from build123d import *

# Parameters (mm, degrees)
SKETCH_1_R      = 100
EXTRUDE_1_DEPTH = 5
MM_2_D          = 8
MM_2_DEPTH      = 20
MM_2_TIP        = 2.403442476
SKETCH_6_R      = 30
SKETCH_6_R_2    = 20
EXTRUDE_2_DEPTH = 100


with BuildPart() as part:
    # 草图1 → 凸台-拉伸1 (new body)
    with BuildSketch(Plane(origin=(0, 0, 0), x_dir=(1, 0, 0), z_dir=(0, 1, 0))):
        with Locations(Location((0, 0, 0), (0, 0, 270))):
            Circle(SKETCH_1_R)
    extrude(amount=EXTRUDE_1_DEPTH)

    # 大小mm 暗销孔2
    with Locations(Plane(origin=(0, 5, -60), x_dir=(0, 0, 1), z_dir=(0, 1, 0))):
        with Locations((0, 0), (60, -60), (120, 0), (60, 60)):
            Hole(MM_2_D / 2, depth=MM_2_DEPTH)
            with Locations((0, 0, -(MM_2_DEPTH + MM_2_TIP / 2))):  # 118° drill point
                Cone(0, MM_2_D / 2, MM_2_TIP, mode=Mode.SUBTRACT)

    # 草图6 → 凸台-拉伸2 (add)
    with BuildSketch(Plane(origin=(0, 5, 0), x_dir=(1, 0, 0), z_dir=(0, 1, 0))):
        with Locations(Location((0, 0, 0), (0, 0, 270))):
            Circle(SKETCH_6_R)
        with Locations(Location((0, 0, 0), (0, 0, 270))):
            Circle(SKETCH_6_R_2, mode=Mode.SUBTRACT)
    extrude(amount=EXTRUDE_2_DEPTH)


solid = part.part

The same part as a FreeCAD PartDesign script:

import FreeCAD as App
import Part
import Sketcher

V = App.Vector
Q = App.Units.Quantity

doc = App.newDocument("Part")
body = doc.addObject("PartDesign::Body", "Body")

# Sketch on XZ plane
sketch1 = body.newObject("Sketcher::SketchObject", "Sketch")
sketch1.AttachmentSupport = (doc.getObject("XZ_Plane"), [""])
sketch1.MapMode = "FlatFace"
sketch1.addGeometry(Part.Circle(V(0, 0, 0), V(0, 0, 1), 100), False)
sketch1.addConstraint(Sketcher.Constraint("Coincident", 0, 3, -1, 1))
sketch1.addConstraint(Sketcher.Constraint("Diameter", 0, Q("200 mm")))
pad1 = body.newObject("PartDesign::Pad", "Pad")
pad1.Profile = sketch1
pad1.Length = 5
pad1.Reversed = True

# Sketch on XZ plane
sketch2 = body.newObject("Sketcher::SketchObject", "Sketch001")
sketch2.AttachmentSupport = (doc.getObject("XZ_Plane"), [""])
sketch2.MapMode = "FlatFace"
sketch2.AttachmentOffset = App.Placement(V(0, 0, -5), App.Rotation())
sketch2.addGeometry(Part.Circle(V(0, -60, 0), V(0, 0, 1), 4), False)
sketch2.addGeometry(Part.Circle(V(-60, 0, 0), V(0, 0, 1), 4), False)
sketch2.addGeometry(Part.Circle(V(0, 60, 0), V(0, 0, 1), 4), False)
sketch2.addGeometry(Part.Circle(V(60, 0, 0), V(0, 0, 1), 4), False)
sketch2.addConstraint(Sketcher.Constraint("Equal", 0, 1))
sketch2.addConstraint(Sketcher.Constraint("Equal", 1, 2))
sketch2.addConstraint(Sketcher.Constraint("Equal", 2, 3))
sketch2.addConstraint(Sketcher.Constraint("Symmetric", 0, 3, 2, 3, -1, 1))
sketch2.addConstraint(Sketcher.Constraint("Symmetric", 1, 3, 3, 3, -1, 1))
sketch2.addConstraint(Sketcher.Constraint("PointOnObject", 0, 3, -2))
sketch2.addConstraint(Sketcher.Constraint("PointOnObject", 1, 3, -1))
sketch2.addConstraint(Sketcher.Constraint("Diameter", 0, Q("8 mm")))
sketch2.addConstraint(Sketcher.Constraint("DistanceY", 0, 3, -1, 1, Q("60 mm")))
sketch2.addConstraint(Sketcher.Constraint("DistanceX", 1, 3, -1, 1, Q("60 mm")))
doc.recompute()
hole = body.newObject("PartDesign::Hole", "Hole")
hole.Profile = sketch2
hole.ThreadType = "None"
hole.Diameter = 8
hole.DepthType = "Dimension"
hole.Depth = 20
hole.DrillPoint = "Angled"
hole.DrillPointAngle = 118
hole.Reversed = True

# Sketch on XZ plane
sketch3 = body.newObject("Sketcher::SketchObject", "Sketch002")
sketch3.AttachmentSupport = (doc.getObject("XZ_Plane"), [""])
sketch3.MapMode = "FlatFace"
sketch3.AttachmentOffset = App.Placement(V(0, 0, -5), App.Rotation())
sketch3.addGeometry(Part.Circle(V(0, 0, 0), V(0, 0, 1), 30), False)
sketch3.addGeometry(Part.Circle(V(0, 0, 0), V(0, 0, 1), 20), False)
sketch3.addConstraint(Sketcher.Constraint("Coincident", 0, 3, -1, 1))
sketch3.addConstraint(Sketcher.Constraint("Coincident", 1, 3, -1, 1))
sketch3.addConstraint(Sketcher.Constraint("Diameter", 0, Q("60 mm")))
sketch3.addConstraint(Sketcher.Constraint("Diameter", 1, Q("40 mm")))
pad2 = body.newObject("PartDesign::Pad", "Pad001")
pad2.Profile = sketch3
pad2.Length = 100
pad2.Reversed = True

doc.recompute()
